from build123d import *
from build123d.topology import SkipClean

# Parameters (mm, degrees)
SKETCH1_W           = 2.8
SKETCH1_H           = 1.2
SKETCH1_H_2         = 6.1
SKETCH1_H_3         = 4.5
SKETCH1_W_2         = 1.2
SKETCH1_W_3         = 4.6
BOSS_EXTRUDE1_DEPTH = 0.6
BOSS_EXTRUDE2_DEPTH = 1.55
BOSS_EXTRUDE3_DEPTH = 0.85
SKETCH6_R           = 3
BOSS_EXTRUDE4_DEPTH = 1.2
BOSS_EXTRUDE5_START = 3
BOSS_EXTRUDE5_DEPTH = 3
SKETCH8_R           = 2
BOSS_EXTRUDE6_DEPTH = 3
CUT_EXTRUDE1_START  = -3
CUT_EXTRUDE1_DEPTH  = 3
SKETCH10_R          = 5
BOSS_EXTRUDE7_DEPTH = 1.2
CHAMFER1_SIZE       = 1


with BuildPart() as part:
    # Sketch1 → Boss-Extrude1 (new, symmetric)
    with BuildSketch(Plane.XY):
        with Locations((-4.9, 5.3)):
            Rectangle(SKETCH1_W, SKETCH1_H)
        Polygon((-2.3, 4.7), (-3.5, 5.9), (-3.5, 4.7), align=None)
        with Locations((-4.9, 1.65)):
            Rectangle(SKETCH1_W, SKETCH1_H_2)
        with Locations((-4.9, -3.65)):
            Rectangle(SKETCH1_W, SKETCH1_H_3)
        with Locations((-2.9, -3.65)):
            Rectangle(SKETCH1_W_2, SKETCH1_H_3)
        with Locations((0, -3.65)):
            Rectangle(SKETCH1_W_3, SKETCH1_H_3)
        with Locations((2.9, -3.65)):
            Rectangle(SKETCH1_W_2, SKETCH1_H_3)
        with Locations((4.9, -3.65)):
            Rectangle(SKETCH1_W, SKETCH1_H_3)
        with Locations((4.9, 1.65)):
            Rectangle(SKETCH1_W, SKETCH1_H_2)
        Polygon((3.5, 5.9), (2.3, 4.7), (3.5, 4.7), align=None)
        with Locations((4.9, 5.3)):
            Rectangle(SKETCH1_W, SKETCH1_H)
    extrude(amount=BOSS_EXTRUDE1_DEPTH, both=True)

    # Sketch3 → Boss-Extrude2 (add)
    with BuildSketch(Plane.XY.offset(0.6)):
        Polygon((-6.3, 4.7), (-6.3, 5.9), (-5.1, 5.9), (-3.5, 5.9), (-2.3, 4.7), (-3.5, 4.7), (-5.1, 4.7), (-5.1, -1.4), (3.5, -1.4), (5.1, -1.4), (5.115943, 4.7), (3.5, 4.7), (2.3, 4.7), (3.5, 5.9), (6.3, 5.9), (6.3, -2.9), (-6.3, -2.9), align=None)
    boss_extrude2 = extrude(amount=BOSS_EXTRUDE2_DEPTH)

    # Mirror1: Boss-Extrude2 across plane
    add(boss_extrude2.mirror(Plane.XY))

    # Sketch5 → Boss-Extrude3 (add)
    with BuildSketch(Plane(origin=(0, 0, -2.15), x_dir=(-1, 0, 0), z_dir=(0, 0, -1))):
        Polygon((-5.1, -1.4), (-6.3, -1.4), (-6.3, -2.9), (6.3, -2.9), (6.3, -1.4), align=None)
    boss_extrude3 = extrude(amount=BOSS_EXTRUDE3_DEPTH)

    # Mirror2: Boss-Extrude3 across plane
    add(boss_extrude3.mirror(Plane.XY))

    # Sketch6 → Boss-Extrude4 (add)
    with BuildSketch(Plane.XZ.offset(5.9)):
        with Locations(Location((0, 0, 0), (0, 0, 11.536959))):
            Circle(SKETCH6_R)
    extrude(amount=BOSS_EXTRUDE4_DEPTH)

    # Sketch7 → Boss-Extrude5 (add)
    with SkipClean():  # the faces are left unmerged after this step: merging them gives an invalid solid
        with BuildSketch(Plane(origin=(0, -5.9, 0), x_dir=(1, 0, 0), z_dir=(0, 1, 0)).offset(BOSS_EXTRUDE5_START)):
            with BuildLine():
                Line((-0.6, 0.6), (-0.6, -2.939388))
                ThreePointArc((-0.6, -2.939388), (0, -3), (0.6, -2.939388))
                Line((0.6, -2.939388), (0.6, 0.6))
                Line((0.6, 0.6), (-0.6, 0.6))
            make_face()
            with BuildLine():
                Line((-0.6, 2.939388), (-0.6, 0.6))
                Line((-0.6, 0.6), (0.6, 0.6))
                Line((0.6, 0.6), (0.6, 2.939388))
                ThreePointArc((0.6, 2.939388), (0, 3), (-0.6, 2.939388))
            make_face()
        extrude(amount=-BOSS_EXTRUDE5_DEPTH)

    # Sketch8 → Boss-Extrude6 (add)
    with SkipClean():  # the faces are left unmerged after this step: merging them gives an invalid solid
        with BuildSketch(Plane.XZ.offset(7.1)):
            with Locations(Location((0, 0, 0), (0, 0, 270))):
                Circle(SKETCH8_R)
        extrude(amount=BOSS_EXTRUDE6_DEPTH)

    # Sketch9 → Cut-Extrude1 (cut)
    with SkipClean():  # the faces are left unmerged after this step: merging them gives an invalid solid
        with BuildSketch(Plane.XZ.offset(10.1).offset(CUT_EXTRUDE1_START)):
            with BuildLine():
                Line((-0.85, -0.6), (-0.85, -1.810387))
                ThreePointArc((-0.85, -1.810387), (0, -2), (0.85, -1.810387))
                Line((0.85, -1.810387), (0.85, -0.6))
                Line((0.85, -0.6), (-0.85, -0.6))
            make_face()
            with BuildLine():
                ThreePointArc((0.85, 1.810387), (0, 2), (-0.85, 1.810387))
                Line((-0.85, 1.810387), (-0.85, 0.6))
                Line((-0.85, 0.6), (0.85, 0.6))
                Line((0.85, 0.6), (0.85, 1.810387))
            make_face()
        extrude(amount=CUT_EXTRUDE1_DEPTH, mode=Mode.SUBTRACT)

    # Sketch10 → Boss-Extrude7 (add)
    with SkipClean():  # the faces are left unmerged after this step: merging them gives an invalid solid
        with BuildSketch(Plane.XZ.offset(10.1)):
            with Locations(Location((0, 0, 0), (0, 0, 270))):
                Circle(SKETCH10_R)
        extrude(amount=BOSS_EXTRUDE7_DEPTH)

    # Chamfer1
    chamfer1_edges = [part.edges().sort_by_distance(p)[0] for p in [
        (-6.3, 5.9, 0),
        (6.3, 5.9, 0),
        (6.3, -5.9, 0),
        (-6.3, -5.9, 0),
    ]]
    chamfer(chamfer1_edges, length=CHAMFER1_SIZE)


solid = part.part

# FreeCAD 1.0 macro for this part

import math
import FreeCAD as App
import Part
import Sketcher
from FreeCAD import Vector


def edges_at(feature, points):
    """Names of the edges that pass closest to the given points."""
    edges = feature.Shape.Edges
    near = lambda p: min(range(len(edges)), key=lambda i: edges[i].distToShape(Part.Vertex(*p))[0])
    return sorted({f"Edge{near(p) + 1}" for p in points})


def add_polygon(sketch, points):
    """Adds a closed chain of lines whose ends are joined by coincident constraints."""
    first, n = sketch.GeometryCount, len(points)
    for a, b in zip(points, points[1:] + points[:1]):
        sketch.addGeometry(Part.LineSegment(App.Vector(*a, 0), App.Vector(*b, 0)), False)
    for i in range(n):
        sketch.addConstraint(Sketcher.Constraint("Coincident", first + i, 2, first + (i + 1) % n, 1))

doc = App.newDocument("Part")
body = doc.addObject("PartDesign::Body", "Body")

# Sketch on XY plane
sketch1 = body.newObject("Sketcher::SketchObject", "Sketch")
sketch1.AttachmentSupport = (doc.getObject("XY_Plane"), [""])
sketch1.MapMode = "FlatFace"
add_polygon(sketch1, [(-6.3, 5.9), (-6.3, -5.9), (6.3, -5.9), (6.3, 5.9), (3.5, 5.9), (2.3, 4.7), (3.5, 4.7), (3.5, -1.4), (-3.5, -1.4), (-3.5, 4.7), (-2.3, 4.7), (-3.5, 5.9)])  # lines 0-11
sketch1.addConstraint([
    Sketcher.Constraint("Vertical", 0),
    Sketcher.Constraint("Horizontal", 1),
    Sketcher.Constraint("Vertical", 2),
    Sketcher.Constraint("Horizontal", 3),
    Sketcher.Constraint("Horizontal", 5),
    Sketcher.Constraint("Vertical", 6),
    Sketcher.Constraint("Horizontal", 7),
    Sketcher.Constraint("Vertical", 8),
    Sketcher.Constraint("Horizontal", 9),
    Sketcher.Constraint("Horizontal", 11),
    Sketcher.Constraint("Symmetric", 0, 2, 2, 2, -1, 1),
    Sketcher.Constraint("Symmetric", 5, 2, 8, 2, -2),
    Sketcher.Constraint("Symmetric", 3, 2, 10, 2, -2),
    Sketcher.Constraint("Perpendicular", 4, 10),
    Sketcher.Constraint("Vertical", 3, 2, 5, 2),
    Sketcher.Constraint("Equal", 5, 9),
    Sketcher.Constraint("DistanceX", 7, 2, 7, 1, 7.0),
    Sketcher.Constraint("DistanceX", 1, 1, 1, 2, 12.6),
    Sketcher.Constraint("DistanceX", 5, 1, 5, 2, 1.2),
    Sketcher.Constraint("DistanceY", 0, 2, 0, 1, 11.8),
    Sketcher.Constraint("DistanceY", 6, 2, 6, 1, 6.1),
])
pad1 = body.newObject("PartDesign::Pad", "Pad")
pad1.Profile = sketch1
pad1.Length = 1.2
pad1.Midplane = True

# Sketch on XY plane
sketch2 = body.newObject("Sketcher::SketchObject", "Sketch001")
sketch2.AttachmentSupport = (doc.getObject("XY_Plane"), [""])
sketch2.MapMode = "FlatFace"
sketch2.AttachmentOffset = App.Placement(Vector(0, 0, 0.6), App.Rotation())
add_polygon(sketch2, [(-6.3, 5.9), (-6.3, -2.9), (6.3, -2.9), (6.3, 5.9), (3.5, 5.9), (2.3, 4.7), (5.1, 4.7), (5.1, -1.4), (-5.1, -1.4), (-5.1, 4.7), (-2.3, 4.7), (-3.5, 5.9)])  # lines 0-11
sketch2.addConstraint([
    Sketcher.Constraint("Vertical", 0),
    Sketcher.Constraint("Horizontal", 1),
    Sketcher.Constraint("Vertical", 2),
    Sketcher.Constraint("Horizontal", 3),
    Sketcher.Constraint("Horizontal", 5),
    Sketcher.Constraint("Horizontal", 7),
    Sketcher.Constraint("Vertical", 8),
    Sketcher.Constraint("Horizontal", 9),
    Sketcher.Constraint("Horizontal", 11),
    Sketcher.Constraint("Symmetric", 4, 2, 9, 2, -2),
    Sketcher.Constraint("Symmetric", 3, 2, 10, 2, -2),
    Sketcher.Constraint("Perpendicular", 4, 10),
    Sketcher.Constraint("Equal", 3, 9),
    Sketcher.Constraint("Equal", 9, 11),
    Sketcher.Constraint("DistanceX", 1, 1, 1, 2, 12.6),
    Sketcher.Constraint("DistanceX", 3, 2, 3, 1, 2.8),
    Sketcher.Constraint("DistanceX", 7, 2, 7, 1, 10.2),
    Sketcher.Constraint("DistanceY", 0, 2, 0, 1, 8.8),
    Sketcher.Constraint("DistanceY", 8, 1, 8, 2, 6.1),
    Sketcher.Constraint("DistanceX", 4, 2, 2, 2, 4.0),
    Sketcher.Constraint("DistanceY", 0, 2, -1, 1, 2.9),
    Sketcher.Constraint("DistanceX", 5, 1, 5, 2, 2.815943),
])
pad2 = body.newObject("PartDesign::Pad", "Pad001")
pad2.Profile = sketch2
pad2.Length = 1.55
doc.recompute()

mirrored = body.newObject("PartDesign::Mirrored", "Mirrored")
mirrored.Originals = [pad2]
mirrored.MirrorPlane = (doc.getObject("XY_Plane"), [""])
body.Tip = mirrored

# Sketch on XY plane
sketch3 = body.newObject("Sketcher::SketchObject", "Sketch002")
sketch3.AttachmentSupport = (doc.getObject("XY_Plane"), [""])
sketch3.MapMode = "FlatFace"
sketch3.AttachmentOffset = App.Placement(Vector(0, 0, -2.15), App.Rotation())
add_polygon(sketch3, [(6.3, -1.4), (6.3, -2.9), (-6.3, -2.9), (-6.3, -1.4)])  # lines 0-3
sketch3.addConstraint([
    Sketcher.Constraint("Vertical", 0),
    Sketcher.Constraint("Horizontal", 1),
    Sketcher.Constraint("Vertical", 2),
    Sketcher.Constraint("Horizontal", 3),
    Sketcher.Constraint("DistanceX", 1, 2, 1, 1, 12.6),
    Sketcher.Constraint("DistanceY", 0, 2, 0, 1, 1.5),
    Sketcher.Constraint("DistanceX", -1, 1, 0, 2, 6.3),
    Sketcher.Constraint("DistanceY", 0, 2, -1, 1, 2.9),
])
pad3 = body.newObject("PartDesign::Pad", "Pad002")
pad3.Profile = sketch3
pad3.Length = 0.85
pad3.Reversed = True
doc.recompute()

mirrored2 = body.newObject("PartDesign::Mirrored", "Mirrored001")
mirrored2.Originals = [pad3]
mirrored2.MirrorPlane = (doc.getObject("XY_Plane"), [""])
body.Tip = mirrored2

# Sketch on XZ plane
sketch4 = body.newObject("Sketcher::SketchObject", "Sketch003")
sketch4.AttachmentSupport = (doc.getObject("XZ_Plane"), [""])
sketch4.MapMode = "FlatFace"
sketch4.AttachmentOffset = App.Placement(Vector(0, 0, 5.9), App.Rotation())
sketch4.addGeometry(Part.Circle(Vector(0, 0, 0), Vector(0, 0, 1), 3), False)
sketch4.addConstraint([
    Sketcher.Constraint("Coincident", 0, 3, -1, 1),
    Sketcher.Constraint("Diameter", 0, 6.0),
])
pad4 = body.newObject("PartDesign::Pad", "Pad003")
pad4.Profile = sketch4
pad4.Length = 1.2

# Sketch on XZ plane
sketch5 = body.newObject("Sketcher::SketchObject", "Sketch004")
sketch5.AttachmentSupport = (doc.getObject("XZ_Plane"), [""])
sketch5.MapMode = "FlatFace"
sketch5.AttachmentOffset = App.Placement(Vector(0, 0, 2.9), App.Rotation())
sketch5.addGeometry([
    Part.LineSegment(Vector(-0.6, -0.6, 0), Vector(-0.6, 2.939388, 0)),  # 0
    Part.ArcOfCircle(Part.Circle(Vector(0, -0.000015, 0), Vector(0, 0, 1), 3.000015), math.radians(78.463099), math.radians(101.536901)),  # 1
    Part.LineSegment(Vector(0.6, 2.939388, 0), Vector(0.6, -0.6, 0)),  # 2
    Part.LineSegment(Vector(0.6, -0.6, 0), Vector(-0.6, -0.6, 0)),  # 3
    Part.LineSegment(Vector(-0.6, -2.939388, 0), Vector(-0.6, -0.6, 0)),  # 4
    Part.LineSegment(Vector(-0.6, -0.6, 0), Vector(0.6, -0.6, 0)),  # 5
    Part.LineSegment(Vector(0.6, -0.6, 0), Vector(0.6, -2.939388, 0)),  # 6
    Part.ArcOfCircle(Part.Circle(Vector(0, 0.000015, 0), Vector(0, 0, 1), 3.000015), math.radians(-101.536901), math.radians(-78.463099)),  # 7
], False)
sketch5.addConstraint([
    Sketcher.Constraint("Coincident", 0, 2, 1, 2),
    Sketcher.Constraint("Coincident", 1, 1, 2, 1),
    Sketcher.Constraint("Coincident", 2, 2, 3, 1),
    Sketcher.Constraint("Coincident", 3, 2, 0, 1),
    Sketcher.Constraint("Coincident", 4, 2, 5, 1),
    Sketcher.Constraint("Coincident", 5, 2, 6, 1),
    Sketcher.Constraint("Coincident", 6, 2, 7, 2),
    Sketcher.Constraint("Coincident", 7, 1, 4, 1),
    Sketcher.Constraint("Vertical", 0),
    Sketcher.Constraint("Vertical", 2),
    Sketcher.Constraint("Horizontal", 3),
    Sketcher.Constraint("Vertical", 4),
    Sketcher.Constraint("Horizontal", 5),
    Sketcher.Constraint("Vertical", 6),
    Sketcher.Constraint("Coincident", 4, 2, 3, 2),
    Sketcher.Constraint("Equal", 1, 7),
    Sketcher.Constraint("Symmetric", 1, 3, 7, 3, -1, 1),
    Sketcher.Constraint("Symmetric", 0, 2, 1, 1, -2),
    Sketcher.Constraint("Horizontal", 6, 2, 7, 1),
    Sketcher.Constraint("DistanceX", 3, 2, 3, 1, 1.2),
    Sketcher.Constraint("DistanceY", 2, 2, -1, 1, 0.6),
    Sketcher.Constraint("Radius", 1, 3.000015),
    Sketcher.Constraint("DistanceY", 0, 1, 0, 2, 3.539388),
])
pad5 = body.newObject("PartDesign::Pad", "Pad004")
pad5.Profile = sketch5
pad5.Length = 3

# Sketch on XZ plane
sketch6 = body.newObject("Sketcher::SketchObject", "Sketch005")
sketch6.AttachmentSupport = (doc.getObject("XZ_Plane"), [""])
sketch6.MapMode = "FlatFace"
sketch6.AttachmentOffset = App.Placement(Vector(0, 0, 7.1), App.Rotation())
sketch6.addGeometry(Part.Circle(Vector(0, 0, 0), Vector(0, 0, 1), 2), False)
sketch6.addConstraint([
    Sketcher.Constraint("Coincident", 0, 3, -1, 1),
    Sketcher.Constraint("Diameter", 0, 4.0),
])
pad6 = body.newObject("PartDesign::Pad", "Pad005")
pad6.Profile = sketch6
pad6.Length = 3

# Sketch on XZ plane
sketch7 = body.newObject("Sketcher::SketchObject", "Sketch006")
sketch7.AttachmentSupport = (doc.getObject("XZ_Plane"), [""])
sketch7.MapMode = "FlatFace"
sketch7.AttachmentOffset = App.Placement(Vector(0, 0, 7.1), App.Rotation())
sketch7.addGeometry([
    Part.LineSegment(Vector(-0.8, -0.6, 0), Vector(-0.8, -1.8, 0)),  # 0
    Part.ArcOfCircle(Part.Circle(Vector(0, 0, 0), Vector(0, 0, 1), 2), math.radians(-115), math.radians(-65)),  # 1
    Part.LineSegment(Vector(0.8, -1.8, 0), Vector(0.8, -0.6, 0)),  # 2
    Part.LineSegment(Vector(0.8, -0.6, 0), Vector(-0.8, -0.6, 0)),  # 3
    Part.ArcOfCircle(Part.Circle(Vector(0, 0, 0), Vector(0, 0, 1), 2), math.radians(65), math.radians(115)),  # 4
    Part.LineSegment(Vector(-0.8, 1.8, 0), Vector(-0.8, 0.6, 0)),  # 5
    Part.LineSegment(Vector(-0.8, 0.6, 0), Vector(0.8, 0.6, 0)),  # 6
    Part.LineSegment(Vector(0.8, 0.6, 0), Vector(0.8, 1.8, 0)),  # 7
], False)
sketch7.addConstraint([
    Sketcher.Constraint("Coincident", 0, 2, 1, 1),
    Sketcher.Constraint("Coincident", 1, 2, 2, 1),
    Sketcher.Constraint("Coincident", 2, 2, 3, 1),
    Sketcher.Constraint("Coincident", 3, 2, 0, 1),
    Sketcher.Constraint("Coincident", 4, 2, 5, 1),
    Sketcher.Constraint("Coincident", 5, 2, 6, 1),
    Sketcher.Constraint("Coincident", 6, 2, 7, 1),
    Sketcher.Constraint("Coincident", 7, 2, 4, 1),
    Sketcher.Constraint("Vertical", 0),
    Sketcher.Constraint("Vertical", 2),
    Sketcher.Constraint("Horizontal", 3),
    Sketcher.Constraint("Vertical", 5),
    Sketcher.Constraint("Horizontal", 6),
    Sketcher.Constraint("Vertical", 7),
    Sketcher.Constraint("Coincident", 1, 3, -1, 1),
    Sketcher.Constraint("Coincident", 4, 3, -1, 1),
    Sketcher.Constraint("Equal", 1, 4),
    Sketcher.Constraint("Symmetric", 2, 2, 5, 2, -1, 1),
    Sketcher.Constraint("Horizontal", 0, 2, 1, 2),
    Sketcher.Constraint("Horizontal", 4, 2, 7, 2),
    Sketcher.Constraint("DistanceX", 3, 2, 3, 1, 1.7),
    Sketcher.Constraint("DistanceY", 2, 2, -1, 1, 0.6),
    Sketcher.Constraint("Radius", 1, 2.000003),
])
pocket1 = body.newObject("PartDesign::Pocket", "Pocket")
pocket1.Profile = sketch7
pocket1.Length = 3
pocket1.Reversed = True

# Sketch on XZ plane
sketch8 = body.newObject("Sketcher::SketchObject", "Sketch007")
sketch8.AttachmentSupport = (doc.getObject("XZ_Plane"), [""])
sketch8.MapMode = "FlatFace"
sketch8.AttachmentOffset = App.Placement(Vector(0, 0, 10.1), App.Rotation())
sketch8.addGeometry(Part.Circle(Vector(0, 0, 0), Vector(0, 0, 1), 5), False)
sketch8.addConstraint([
    Sketcher.Constraint("Coincident", 0, 3, -1, 1),
    Sketcher.Constraint("Diameter", 0, 10.0),
])
pad7 = body.newObject("PartDesign::Pad", "Pad006")
pad7.Profile = sketch8
pad7.Length = 1.2
doc.recompute()

chamfer = body.newObject("PartDesign::Chamfer", "Chamfer")
chamfer.Base = (pad7, edges_at(pad7, [
    (-6.3, 5.9, 0),
    (6.3, 5.9, 0),
    (6.3, -5.9, 0),
    (-6.3, -5.9, 0),
]))
chamfer.Size = 1

doc.recompute()
